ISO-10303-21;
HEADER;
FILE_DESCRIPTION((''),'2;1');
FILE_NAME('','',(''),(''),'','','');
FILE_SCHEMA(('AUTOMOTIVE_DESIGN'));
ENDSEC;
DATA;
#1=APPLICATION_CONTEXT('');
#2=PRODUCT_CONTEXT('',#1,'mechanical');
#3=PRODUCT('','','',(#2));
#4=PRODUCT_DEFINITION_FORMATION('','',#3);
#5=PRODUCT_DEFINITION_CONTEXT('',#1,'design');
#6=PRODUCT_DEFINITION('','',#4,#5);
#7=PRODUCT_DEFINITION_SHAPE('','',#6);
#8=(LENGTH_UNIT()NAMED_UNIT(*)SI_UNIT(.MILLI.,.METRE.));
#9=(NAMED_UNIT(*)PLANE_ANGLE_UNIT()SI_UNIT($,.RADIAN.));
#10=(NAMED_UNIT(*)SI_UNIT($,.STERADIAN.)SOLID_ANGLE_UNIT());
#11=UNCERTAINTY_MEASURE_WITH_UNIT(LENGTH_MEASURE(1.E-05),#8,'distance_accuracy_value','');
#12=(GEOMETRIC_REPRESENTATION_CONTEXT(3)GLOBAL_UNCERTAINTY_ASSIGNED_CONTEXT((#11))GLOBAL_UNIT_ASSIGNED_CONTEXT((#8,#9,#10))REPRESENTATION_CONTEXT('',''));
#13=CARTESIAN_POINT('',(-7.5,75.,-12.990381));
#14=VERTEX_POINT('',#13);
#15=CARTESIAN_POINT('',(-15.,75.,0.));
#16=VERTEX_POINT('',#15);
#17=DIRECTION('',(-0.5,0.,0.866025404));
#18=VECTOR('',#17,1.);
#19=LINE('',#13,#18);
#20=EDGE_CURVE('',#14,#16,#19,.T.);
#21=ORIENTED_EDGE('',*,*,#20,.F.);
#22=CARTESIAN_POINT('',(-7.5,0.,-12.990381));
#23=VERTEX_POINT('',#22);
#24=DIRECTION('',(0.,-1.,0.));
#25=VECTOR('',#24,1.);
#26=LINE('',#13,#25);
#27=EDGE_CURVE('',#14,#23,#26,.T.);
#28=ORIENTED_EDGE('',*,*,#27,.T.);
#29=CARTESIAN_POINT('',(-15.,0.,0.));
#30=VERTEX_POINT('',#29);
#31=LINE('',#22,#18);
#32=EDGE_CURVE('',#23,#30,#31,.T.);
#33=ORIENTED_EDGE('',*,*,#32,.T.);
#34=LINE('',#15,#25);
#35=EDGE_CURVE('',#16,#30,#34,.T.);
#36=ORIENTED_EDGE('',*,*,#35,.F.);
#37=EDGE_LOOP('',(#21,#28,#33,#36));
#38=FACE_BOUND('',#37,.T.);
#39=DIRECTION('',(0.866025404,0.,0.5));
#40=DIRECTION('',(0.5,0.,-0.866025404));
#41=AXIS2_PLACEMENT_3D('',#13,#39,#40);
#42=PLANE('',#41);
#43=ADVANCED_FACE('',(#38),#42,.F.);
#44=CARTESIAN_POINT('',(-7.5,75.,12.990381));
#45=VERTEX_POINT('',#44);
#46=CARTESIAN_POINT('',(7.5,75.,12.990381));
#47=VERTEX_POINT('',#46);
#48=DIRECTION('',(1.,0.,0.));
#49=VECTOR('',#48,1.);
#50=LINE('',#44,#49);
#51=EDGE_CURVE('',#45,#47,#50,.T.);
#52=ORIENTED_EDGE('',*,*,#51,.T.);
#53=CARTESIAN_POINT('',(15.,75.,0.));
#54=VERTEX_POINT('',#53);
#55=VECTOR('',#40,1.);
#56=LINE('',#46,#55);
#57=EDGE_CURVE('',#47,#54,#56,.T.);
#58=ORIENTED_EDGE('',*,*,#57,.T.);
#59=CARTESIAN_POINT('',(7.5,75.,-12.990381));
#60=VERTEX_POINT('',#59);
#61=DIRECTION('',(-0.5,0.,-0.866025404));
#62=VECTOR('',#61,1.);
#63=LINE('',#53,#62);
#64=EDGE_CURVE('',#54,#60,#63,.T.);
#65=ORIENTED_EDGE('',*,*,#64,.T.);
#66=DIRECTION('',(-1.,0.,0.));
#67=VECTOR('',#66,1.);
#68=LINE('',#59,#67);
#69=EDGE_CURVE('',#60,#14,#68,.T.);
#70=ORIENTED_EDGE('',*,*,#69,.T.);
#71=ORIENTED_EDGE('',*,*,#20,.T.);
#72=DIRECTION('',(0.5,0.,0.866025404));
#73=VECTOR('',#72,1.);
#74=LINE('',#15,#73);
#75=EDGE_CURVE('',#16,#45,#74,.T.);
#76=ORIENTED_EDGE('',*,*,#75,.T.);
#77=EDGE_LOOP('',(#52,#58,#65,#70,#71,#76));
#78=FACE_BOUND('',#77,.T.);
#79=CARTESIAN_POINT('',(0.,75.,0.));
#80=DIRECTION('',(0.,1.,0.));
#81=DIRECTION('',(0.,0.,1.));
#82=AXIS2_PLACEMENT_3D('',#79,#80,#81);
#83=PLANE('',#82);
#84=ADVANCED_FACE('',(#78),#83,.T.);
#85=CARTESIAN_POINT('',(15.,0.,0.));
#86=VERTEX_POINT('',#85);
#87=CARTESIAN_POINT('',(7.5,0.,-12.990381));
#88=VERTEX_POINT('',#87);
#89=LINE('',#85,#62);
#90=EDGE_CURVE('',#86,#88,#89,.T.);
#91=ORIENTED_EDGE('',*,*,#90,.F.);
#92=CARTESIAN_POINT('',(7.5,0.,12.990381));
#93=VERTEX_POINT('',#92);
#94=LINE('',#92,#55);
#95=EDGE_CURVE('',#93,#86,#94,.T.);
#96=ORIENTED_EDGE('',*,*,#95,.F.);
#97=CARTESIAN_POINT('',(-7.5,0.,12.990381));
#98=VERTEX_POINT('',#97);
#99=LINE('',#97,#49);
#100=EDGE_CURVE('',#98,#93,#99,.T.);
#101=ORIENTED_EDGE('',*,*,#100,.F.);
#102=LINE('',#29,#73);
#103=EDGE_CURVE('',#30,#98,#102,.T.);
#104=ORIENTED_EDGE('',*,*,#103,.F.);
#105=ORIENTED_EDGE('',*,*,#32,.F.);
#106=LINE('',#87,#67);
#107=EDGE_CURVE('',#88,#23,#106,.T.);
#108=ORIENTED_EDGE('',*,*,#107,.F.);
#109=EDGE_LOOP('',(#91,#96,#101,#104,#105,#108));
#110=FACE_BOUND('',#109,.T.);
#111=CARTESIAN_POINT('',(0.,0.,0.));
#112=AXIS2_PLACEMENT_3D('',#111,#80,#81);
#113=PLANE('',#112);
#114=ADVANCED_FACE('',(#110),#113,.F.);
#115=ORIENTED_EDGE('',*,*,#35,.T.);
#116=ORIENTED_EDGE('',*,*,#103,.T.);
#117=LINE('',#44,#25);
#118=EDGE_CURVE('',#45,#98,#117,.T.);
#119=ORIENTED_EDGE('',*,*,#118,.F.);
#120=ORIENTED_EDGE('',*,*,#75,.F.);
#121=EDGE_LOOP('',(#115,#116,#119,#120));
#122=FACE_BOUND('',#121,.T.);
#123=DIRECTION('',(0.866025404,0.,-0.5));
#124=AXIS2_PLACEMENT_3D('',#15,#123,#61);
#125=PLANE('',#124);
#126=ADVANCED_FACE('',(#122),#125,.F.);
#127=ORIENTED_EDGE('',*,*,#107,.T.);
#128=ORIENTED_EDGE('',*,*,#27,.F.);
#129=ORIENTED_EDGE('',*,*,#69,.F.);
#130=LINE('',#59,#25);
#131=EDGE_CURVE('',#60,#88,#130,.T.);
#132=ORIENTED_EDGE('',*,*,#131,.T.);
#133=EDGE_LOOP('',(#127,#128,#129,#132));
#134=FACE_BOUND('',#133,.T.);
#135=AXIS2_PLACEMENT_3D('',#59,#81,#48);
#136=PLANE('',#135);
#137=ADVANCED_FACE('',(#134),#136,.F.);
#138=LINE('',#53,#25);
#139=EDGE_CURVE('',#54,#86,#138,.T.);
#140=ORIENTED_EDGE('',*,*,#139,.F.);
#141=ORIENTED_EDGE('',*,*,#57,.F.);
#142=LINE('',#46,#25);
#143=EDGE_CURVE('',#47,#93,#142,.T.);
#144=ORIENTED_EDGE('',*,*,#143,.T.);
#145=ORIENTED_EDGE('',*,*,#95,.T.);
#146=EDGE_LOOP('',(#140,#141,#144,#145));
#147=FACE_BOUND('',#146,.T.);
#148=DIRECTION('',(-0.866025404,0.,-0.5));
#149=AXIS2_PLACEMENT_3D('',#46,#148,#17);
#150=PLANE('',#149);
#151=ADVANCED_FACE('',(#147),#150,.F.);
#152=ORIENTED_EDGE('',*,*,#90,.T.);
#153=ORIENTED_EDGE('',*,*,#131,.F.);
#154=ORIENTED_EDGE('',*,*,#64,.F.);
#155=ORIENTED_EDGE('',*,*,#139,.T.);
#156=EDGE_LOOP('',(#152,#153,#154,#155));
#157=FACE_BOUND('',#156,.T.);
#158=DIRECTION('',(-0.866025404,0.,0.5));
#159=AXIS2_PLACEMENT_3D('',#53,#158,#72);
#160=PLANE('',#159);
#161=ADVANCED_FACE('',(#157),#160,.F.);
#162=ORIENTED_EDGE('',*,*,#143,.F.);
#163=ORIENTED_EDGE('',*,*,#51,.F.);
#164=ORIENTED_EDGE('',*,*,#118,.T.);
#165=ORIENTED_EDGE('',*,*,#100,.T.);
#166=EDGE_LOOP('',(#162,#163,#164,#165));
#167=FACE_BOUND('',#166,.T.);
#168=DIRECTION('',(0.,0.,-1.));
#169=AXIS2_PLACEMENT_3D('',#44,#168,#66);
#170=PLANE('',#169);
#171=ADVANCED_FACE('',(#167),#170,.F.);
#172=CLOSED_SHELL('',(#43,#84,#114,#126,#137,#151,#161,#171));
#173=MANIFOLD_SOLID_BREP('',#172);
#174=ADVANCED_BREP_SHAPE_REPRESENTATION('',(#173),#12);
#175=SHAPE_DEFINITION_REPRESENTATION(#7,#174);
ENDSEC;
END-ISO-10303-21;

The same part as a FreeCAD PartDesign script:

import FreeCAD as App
import Part
import Sketcher

V = App.Vector
Q = App.Units.Quantity


def add_polygon(sketch, points):
    """Adds a closed chain of lines whose ends are joined by coincident constraints."""
    first, n = sketch.GeometryCount, len(points)
    for a, b in zip(points, points[1:] + points[:1]):
        sketch.addGeometry(Part.LineSegment(App.Vector(*a, 0), App.Vector(*b, 0)), False)
    for i in range(n):
        sketch.addConstraint(Sketcher.Constraint("Coincident", first + i, 2, first + (i + 1) % n, 1))

doc = App.newDocument("Part")
body = doc.addObject("PartDesign::Body", "Body")

# Sketch on XZ plane
sketch1 = body.newObject("Sketcher::SketchObject", "Sketch")
sketch1.AttachmentSupport = (doc.getObject("XZ_Plane"), [""])
sketch1.MapMode = "FlatFace"
add_polygon(sketch1, [(15, 0), (8, -13), (-8, -13), (-15, 0), (-8, 13), (8, 13)])  # lines 0-5
sketch1.addConstraint([
    Sketcher.Constraint("Horizontal", 1),
    Sketcher.Constraint("Horizontal", 4),
    Sketcher.Constraint("Symmetric", 0, 2, 3, 2, -1, 1),
    Sketcher.Constraint("Symmetric", 2, 2, 5, 2, -1, 1),
    Sketcher.Constraint("PointOnObject", 2, 2, -1),
    Sketcher.Constraint("Parallel", 2, 5),
    Sketcher.Constraint("Vertical", 1, 2, 3, 2),
    Sketcher.Constraint("DistanceX", 1, 2, 1, 1, Q("15 mm")),
    Sketcher.Constraint("Angle", 0, Q("-120 deg")),
    Sketcher.Constraint("Distance", 0, Q("15 mm")),
])
pad1 = body.newObject("PartDesign::Pad", "Pad")
pad1.Profile = sketch1
pad1.Length = 75
pad1.Reversed = True

doc.recompute()
